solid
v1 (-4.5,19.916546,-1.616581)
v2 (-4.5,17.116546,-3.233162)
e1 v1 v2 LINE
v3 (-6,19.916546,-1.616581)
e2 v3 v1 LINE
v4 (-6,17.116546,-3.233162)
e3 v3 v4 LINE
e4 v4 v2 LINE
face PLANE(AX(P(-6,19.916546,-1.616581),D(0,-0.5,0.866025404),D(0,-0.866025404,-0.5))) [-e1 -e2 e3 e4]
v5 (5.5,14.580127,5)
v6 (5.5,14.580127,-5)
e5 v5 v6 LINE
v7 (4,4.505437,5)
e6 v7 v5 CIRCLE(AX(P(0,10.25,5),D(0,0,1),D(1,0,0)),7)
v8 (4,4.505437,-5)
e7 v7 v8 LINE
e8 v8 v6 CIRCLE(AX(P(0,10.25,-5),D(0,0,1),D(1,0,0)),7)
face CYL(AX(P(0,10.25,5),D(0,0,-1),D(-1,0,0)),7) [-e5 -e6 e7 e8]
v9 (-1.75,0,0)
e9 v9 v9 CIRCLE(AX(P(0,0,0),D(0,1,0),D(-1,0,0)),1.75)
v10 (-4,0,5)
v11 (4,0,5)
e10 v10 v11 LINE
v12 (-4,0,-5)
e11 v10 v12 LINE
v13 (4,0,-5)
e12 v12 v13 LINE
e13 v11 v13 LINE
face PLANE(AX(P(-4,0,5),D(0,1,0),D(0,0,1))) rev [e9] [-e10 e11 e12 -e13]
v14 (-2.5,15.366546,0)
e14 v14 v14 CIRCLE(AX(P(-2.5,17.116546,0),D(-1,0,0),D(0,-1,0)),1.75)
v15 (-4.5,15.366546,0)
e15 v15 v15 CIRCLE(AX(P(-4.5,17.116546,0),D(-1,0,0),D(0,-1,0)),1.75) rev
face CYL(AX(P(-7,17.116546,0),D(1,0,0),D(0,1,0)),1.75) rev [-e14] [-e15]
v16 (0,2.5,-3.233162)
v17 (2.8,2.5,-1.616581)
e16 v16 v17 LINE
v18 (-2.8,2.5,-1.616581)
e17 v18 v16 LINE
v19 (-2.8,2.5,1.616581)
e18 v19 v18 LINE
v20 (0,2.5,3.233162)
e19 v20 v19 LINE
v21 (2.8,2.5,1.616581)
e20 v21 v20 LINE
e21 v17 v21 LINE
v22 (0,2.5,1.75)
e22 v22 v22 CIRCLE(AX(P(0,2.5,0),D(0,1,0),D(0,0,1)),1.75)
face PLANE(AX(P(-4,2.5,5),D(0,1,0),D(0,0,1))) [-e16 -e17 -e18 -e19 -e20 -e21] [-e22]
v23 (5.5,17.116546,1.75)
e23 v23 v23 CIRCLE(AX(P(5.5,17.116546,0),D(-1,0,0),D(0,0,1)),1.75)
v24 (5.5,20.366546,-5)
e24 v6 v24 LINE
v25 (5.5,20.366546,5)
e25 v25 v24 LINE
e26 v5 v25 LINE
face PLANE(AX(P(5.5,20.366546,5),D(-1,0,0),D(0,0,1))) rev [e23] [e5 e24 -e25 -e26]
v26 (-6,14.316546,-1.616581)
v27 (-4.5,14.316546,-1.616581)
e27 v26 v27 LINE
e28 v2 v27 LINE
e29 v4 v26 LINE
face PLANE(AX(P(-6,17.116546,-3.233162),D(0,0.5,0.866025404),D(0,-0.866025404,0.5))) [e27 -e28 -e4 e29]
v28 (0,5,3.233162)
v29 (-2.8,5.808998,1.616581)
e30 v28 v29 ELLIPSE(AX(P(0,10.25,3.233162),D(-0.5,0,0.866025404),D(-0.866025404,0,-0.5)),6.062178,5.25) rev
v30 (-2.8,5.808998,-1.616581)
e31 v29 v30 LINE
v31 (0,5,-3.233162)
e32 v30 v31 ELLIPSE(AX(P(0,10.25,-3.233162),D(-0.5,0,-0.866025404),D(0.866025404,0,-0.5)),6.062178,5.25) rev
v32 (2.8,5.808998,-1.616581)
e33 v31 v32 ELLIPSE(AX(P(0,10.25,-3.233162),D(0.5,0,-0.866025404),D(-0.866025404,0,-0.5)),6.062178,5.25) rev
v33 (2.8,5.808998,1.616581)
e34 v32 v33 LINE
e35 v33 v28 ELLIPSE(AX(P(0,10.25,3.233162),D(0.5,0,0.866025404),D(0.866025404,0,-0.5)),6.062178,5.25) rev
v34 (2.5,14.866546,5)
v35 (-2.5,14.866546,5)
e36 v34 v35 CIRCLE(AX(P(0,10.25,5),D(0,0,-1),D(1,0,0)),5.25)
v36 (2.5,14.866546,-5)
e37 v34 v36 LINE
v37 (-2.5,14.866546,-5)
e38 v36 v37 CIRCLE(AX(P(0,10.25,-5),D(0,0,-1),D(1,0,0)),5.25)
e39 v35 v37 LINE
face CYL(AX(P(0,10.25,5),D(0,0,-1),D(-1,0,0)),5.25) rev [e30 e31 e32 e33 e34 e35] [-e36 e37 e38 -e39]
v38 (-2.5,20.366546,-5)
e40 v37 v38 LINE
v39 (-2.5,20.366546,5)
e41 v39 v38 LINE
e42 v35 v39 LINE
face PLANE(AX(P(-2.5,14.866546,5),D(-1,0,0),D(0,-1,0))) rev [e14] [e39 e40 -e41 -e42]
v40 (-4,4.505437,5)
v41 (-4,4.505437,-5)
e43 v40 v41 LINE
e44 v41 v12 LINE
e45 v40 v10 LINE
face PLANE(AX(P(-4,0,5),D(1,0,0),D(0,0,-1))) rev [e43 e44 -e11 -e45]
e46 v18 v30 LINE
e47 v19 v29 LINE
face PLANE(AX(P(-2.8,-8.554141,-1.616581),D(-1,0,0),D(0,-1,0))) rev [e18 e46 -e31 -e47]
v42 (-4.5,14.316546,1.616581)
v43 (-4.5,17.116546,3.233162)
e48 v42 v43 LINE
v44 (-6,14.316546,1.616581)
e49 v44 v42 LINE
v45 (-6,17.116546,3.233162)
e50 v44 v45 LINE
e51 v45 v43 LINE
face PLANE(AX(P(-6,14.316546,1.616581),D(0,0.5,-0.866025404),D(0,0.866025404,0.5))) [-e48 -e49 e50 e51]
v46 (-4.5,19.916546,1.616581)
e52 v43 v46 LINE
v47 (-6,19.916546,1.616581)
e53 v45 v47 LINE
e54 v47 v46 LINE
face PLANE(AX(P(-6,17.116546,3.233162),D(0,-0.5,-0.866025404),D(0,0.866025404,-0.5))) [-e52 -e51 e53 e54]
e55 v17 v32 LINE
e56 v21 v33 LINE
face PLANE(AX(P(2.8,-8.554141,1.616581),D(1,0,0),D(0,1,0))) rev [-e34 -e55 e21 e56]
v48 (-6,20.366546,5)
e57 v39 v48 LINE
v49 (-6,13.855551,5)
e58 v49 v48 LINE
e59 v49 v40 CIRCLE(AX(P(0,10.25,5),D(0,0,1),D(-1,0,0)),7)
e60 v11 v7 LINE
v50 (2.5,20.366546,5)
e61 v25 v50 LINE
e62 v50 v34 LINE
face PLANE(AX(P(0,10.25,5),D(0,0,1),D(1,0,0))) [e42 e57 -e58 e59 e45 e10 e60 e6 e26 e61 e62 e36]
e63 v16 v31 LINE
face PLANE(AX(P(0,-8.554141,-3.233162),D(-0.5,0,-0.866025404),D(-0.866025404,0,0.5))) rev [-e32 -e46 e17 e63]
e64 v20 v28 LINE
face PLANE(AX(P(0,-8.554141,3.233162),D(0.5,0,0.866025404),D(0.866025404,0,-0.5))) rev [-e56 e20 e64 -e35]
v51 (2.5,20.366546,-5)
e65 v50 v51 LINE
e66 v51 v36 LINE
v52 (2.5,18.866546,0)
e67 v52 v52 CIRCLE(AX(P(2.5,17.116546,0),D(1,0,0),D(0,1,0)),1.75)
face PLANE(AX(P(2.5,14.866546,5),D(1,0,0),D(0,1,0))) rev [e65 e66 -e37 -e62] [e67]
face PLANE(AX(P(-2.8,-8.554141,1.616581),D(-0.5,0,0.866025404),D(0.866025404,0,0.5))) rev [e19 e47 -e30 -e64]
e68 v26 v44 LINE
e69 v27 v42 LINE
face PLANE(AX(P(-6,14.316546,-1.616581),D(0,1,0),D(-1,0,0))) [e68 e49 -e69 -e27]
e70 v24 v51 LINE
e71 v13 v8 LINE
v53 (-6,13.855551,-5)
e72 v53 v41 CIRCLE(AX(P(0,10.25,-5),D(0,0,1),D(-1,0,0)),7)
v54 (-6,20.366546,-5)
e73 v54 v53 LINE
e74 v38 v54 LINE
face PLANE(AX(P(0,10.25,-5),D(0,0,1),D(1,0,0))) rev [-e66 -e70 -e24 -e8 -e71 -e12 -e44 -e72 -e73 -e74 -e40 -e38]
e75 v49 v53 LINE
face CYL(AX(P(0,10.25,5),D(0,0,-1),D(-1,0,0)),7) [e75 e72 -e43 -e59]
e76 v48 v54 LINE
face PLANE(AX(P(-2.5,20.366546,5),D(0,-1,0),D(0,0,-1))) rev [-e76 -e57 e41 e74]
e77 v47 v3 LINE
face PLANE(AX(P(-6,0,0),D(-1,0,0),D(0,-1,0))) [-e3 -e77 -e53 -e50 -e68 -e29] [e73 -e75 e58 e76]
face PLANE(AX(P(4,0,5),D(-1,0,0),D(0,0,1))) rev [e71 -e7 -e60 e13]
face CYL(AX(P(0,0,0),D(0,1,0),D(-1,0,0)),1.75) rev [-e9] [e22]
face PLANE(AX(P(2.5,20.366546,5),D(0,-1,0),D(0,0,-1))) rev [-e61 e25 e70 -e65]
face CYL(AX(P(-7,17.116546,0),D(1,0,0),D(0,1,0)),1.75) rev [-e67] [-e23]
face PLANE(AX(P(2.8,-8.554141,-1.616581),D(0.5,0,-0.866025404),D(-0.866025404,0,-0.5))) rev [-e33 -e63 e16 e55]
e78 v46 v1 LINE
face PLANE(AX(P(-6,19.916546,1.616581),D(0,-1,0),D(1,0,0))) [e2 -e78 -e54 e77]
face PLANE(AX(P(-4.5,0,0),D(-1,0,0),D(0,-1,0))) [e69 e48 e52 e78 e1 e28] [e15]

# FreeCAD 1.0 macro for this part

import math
import FreeCAD as App
import Part
import Sketcher
Q = App.Units.Quantity

doc = App.newDocument("Part")
body = doc.addObject("PartDesign::Body", "Body")

sketch1 = doc.addObject("Sketcher::SketchObject", "Sketch")
body.addObject(sketch1)
sketch1.AttachmentSupport = (doc.XY_Plane, [""])
sketch1.MapMode = "FlatFace"
sketch1.addGeometry([
    Part.LineSegment(App.Vector(-4, 0, 0), App.Vector(4, 0, 0)),
    Part.LineSegment(App.Vector(4, 0, 0), App.Vector(4, 4.505437, 0)),
    Part.ArcOfCircle(Part.Circle(App.Vector(0, 10.25, 0), App.Vector(0, 0, 1), 7), math.radians(-55.150095), math.radians(38.213211)),
    Part.LineSegment(App.Vector(5.5, 14.580127, 0), App.Vector(5.5, 20.366546, 0)),
    Part.LineSegment(App.Vector(5.5, 20.366546, 0), App.Vector(2.5, 20.366546, 0)),
    Part.LineSegment(App.Vector(2.5, 20.366546, 0), App.Vector(2.5, 14.866546, 0)),
    Part.ArcOfCircle(Part.Circle(App.Vector(0, 10.25, 0), App.Vector(0, 0, 1), 5.25), math.radians(118.43689), math.radians(421.56311)),
    Part.LineSegment(App.Vector(-2.5, 14.866546, 0), App.Vector(-2.5, 20.366546, 0)),
    Part.LineSegment(App.Vector(-2.5, 20.366546, 0), App.Vector(-5.5, 20.366546, 0)),
    Part.LineSegment(App.Vector(-5.5, 20.366546, 0), App.Vector(-5.5, 14.580127, 0)),
    Part.ArcOfCircle(Part.Circle(App.Vector(0, 10.25, 0), App.Vector(0, 0, 1), 7), math.radians(141.786789), math.radians(235.150095)),
    Part.LineSegment(App.Vector(-4, 4.505437, 0), App.Vector(-4, 0, 0)),
], False)
sketch1.addConstraint([
    Sketcher.Constraint("Coincident", 0, 2, 1, 1),
    Sketcher.Constraint("Coincident", 1, 2, 2, 1),
    Sketcher.Constraint("Coincident", 2, 2, 3, 1),
    Sketcher.Constraint("Coincident", 3, 2, 4, 1),
    Sketcher.Constraint("Coincident", 4, 2, 5, 1),
    Sketcher.Constraint("Coincident", 5, 2, 6, 2),
    Sketcher.Constraint("Coincident", 6, 1, 7, 1),
    Sketcher.Constraint("Coincident", 7, 2, 8, 1),
    Sketcher.Constraint("Coincident", 8, 2, 9, 1),
    Sketcher.Constraint("Coincident", 9, 2, 10, 1),
    Sketcher.Constraint("Coincident", 10, 2, 11, 1),
    Sketcher.Constraint("Coincident", 11, 2, 0, 1),
    Sketcher.Constraint("Horizontal", 0),
    Sketcher.Constraint("Vertical", 1),
    Sketcher.Constraint("Vertical", 3),
    Sketcher.Constraint("Horizontal", 4),
    Sketcher.Constraint("Vertical", 5),
    Sketcher.Constraint("Vertical", 7),
    Sketcher.Constraint("Horizontal", 8),
    Sketcher.Constraint("Vertical", 9),
    Sketcher.Constraint("Vertical", 11),
    Sketcher.Constraint("Coincident", 6, 3, 2, 3),
    Sketcher.Constraint("Coincident", 10, 3, 2, 3),
    Sketcher.Constraint("Equal", 2, 10),
    Sketcher.Constraint("Symmetric", 0, 2, 11, 2, -1, 1),
    Sketcher.Constraint("Symmetric", 5, 2, 6, 1, -2),
    Sketcher.Constraint("Symmetric", 3, 2, 8, 2, -2),
    Sketcher.Constraint("Radius", 2, 7.0),
    Sketcher.Constraint("DistanceX", 0, 1, 0, 2, 8.0),
    Sketcher.Constraint("DistanceX", 4, 2, 4, 1, 3.0),
    Sketcher.Constraint("Radius", 6, 5.25),
    Sketcher.Constraint("DistanceY", 5, 2, 5, 1, 5.5),
    Sketcher.Constraint("DistanceX", 6, 1, 5, 2, 5.0),
    Sketcher.Constraint("DistanceY", -1, 1, 2, 3, 10.25),
])
pad1 = doc.addObject("PartDesign::Pad", "Pad")
body.addObject(pad1)
pad1.Profile = sketch1
pad1.Length = 10
pad1.Midplane = True

sketch2 = doc.addObject("Sketcher::SketchObject", "Sketch001")
body.addObject(sketch2)
sketch2.AttachmentSupport = (doc.XZ_Plane, [""])
sketch2.MapMode = "FlatFace"
sketch2.AttachmentOffset = App.Placement(App.Vector(0, 0, -10.366546), App.Rotation())
sketch2.addGeometry([
    Part.LineSegment(App.Vector(0, -3.233162, 0), App.Vector(-2.8, -1.616581, 0)),
    Part.LineSegment(App.Vector(-2.8, -1.616581, 0), App.Vector(-2.8, 1.616581, 0)),
    Part.LineSegment(App.Vector(-2.8, 1.616581, 0), App.Vector(0, 3.233162, 0)),
    Part.LineSegment(App.Vector(0, 3.233162, 0), App.Vector(2.8, 1.616581, 0)),
    Part.LineSegment(App.Vector(2.8, 1.616581, 0), App.Vector(2.8, -1.616581, 0)),
    Part.LineSegment(App.Vector(2.8, -1.616581, 0), App.Vector(0, -3.233162, 0)),
], False)
sketch2.addConstraint([
    Sketcher.Constraint("Coincident", 0, 2, 1, 1),
    Sketcher.Constraint("Coincident", 1, 2, 2, 1),
    Sketcher.Constraint("Coincident", 2, 2, 3, 1),
    Sketcher.Constraint("Coincident", 3, 2, 4, 1),
    Sketcher.Constraint("Coincident", 4, 2, 5, 1),
    Sketcher.Constraint("Coincident", 5, 2, 0, 1),
    Sketcher.Constraint("Vertical", 1),
    Sketcher.Constraint("Vertical", 4),
    Sketcher.Constraint("Symmetric", 0, 2, 3, 2, -1, 1),
    Sketcher.Constraint("Symmetric", 2, 2, 5, 2, -1, 1),
    Sketcher.Constraint("PointOnObject", 2, 2, -2),
    Sketcher.Constraint("Parallel", 2, 5),
    Sketcher.Constraint("Horizontal", 1, 2, 3, 2),
    Sketcher.Constraint("Angle", 0, Q("150 deg")),
    Sketcher.Constraint("DistanceX", 0, 2, -1, 1, 2.8),
    Sketcher.Constraint("DistanceY", 1, 1, 1, 2, 3.233162),
])
pocket1 = doc.addObject("PartDesign::Pocket", "Pocket")
body.addObject(pocket1)
pocket1.Profile = sketch2
pocket1.Length = 7.866546
pocket1.Reversed = True

sketch3 = doc.addObject("Sketcher::SketchObject", "Sketch002")
body.addObject(sketch3)
sketch3.AttachmentSupport = (doc.XZ_Plane, [""])
sketch3.MapMode = "FlatFace"
sketch3.AttachmentOffset = App.Placement(App.Vector(0, 0, -20.366546), App.Rotation())
sketch3.addGeometry(Part.Circle(App.Vector(0, 0, 0), App.Vector(0, 0, 1), 1.75), False)
sketch3.addConstraint([
    Sketcher.Constraint("Coincident", 0, 3, -1, 1),
    Sketcher.Constraint("Diameter", 0, 3.5),
])
pocket2 = doc.addObject("PartDesign::Pocket", "Pocket001")
body.addObject(pocket2)
pocket2.Profile = sketch3
pocket2.Type = "ThroughAll"
pocket2.Reversed = True

sketch4 = doc.addObject("Sketcher::SketchObject", "Sketch003")
body.addObject(sketch4)
sketch4.AttachmentSupport = (doc.YZ_Plane, [""])
sketch4.MapMode = "FlatFace"
sketch4.AttachmentOffset = App.Placement(App.Vector(0, 0, 5.5), App.Rotation())
sketch4.addGeometry(Part.Circle(App.Vector(17.116546, 0, 0), App.Vector(0, 0, 1), 1.75), False)
sketch4.addConstraint([
    Sketcher.Constraint("PointOnObject", 0, 3, -1),
    Sketcher.Constraint("Diameter", 0, 3.5),
    Sketcher.Constraint("DistanceX", -1, 1, 0, 3, 17.116546),
])
pocket3 = doc.addObject("PartDesign::Pocket", "Pocket002")
body.addObject(pocket3)
pocket3.Profile = sketch4
pocket3.Type = "ThroughAll"
pocket3.Midplane = True

sketch5 = doc.addObject("Sketcher::SketchObject", "Sketch004")
body.addObject(sketch5)
sketch5.AttachmentSupport = (doc.YZ_Plane, [""])
sketch5.MapMode = "FlatFace"
sketch5.AttachmentOffset = App.Placement(App.Vector(0, 0, -5.5), App.Rotation())
sketch5.addGeometry([
    Part.LineSegment(App.Vector(20.366546, -5, 0), App.Vector(13.116546, -5, 0)),
    Part.LineSegment(App.Vector(13.116546, -5, 0), App.Vector(13.116546, 5, 0)),
    Part.LineSegment(App.Vector(13.116546, 5, 0), App.Vector(20.366546, 5, 0)),
    Part.LineSegment(App.Vector(20.366546, 5, 0), App.Vector(20.366546, -5, 0)),
    Part.LineSegment(App.Vector(19.916546, 1.616581, 0), App.Vector(17.116546, 3.233162, 0)),
    Part.LineSegment(App.Vector(17.116546, 3.233162, 0), App.Vector(14.316546, 1.616581, 0)),
    Part.LineSegment(App.Vector(14.316546, 1.616581, 0), App.Vector(14.316546, -1.616581, 0)),
    Part.LineSegment(App.Vector(14.316546, -1.616581, 0), App.Vector(17.116546, -3.233162, 0)),
    Part.LineSegment(App.Vector(17.116546, -3.233162, 0), App.Vector(19.916546, -1.616581, 0)),
    Part.LineSegment(App.Vector(19.916546, -1.616581, 0), App.Vector(19.916546, 1.616581, 0)),
], False)
sketch5.addConstraint([
    Sketcher.Constraint("Coincident", 0, 2, 1, 1),
    Sketcher.Constraint("Coincident", 1, 2, 2, 1),
    Sketcher.Constraint("Coincident", 2, 2, 3, 1),
    Sketcher.Constraint("Coincident", 3, 2, 0, 1),
    Sketcher.Constraint("Coincident", 4, 2, 5, 1),
    Sketcher.Constraint("Coincident", 5, 2, 6, 1),
    Sketcher.Constraint("Coincident", 6, 2, 7, 1),
    Sketcher.Constraint("Coincident", 7, 2, 8, 1),
    Sketcher.Constraint("Coincident", 8, 2, 9, 1),
    Sketcher.Constraint("Coincident", 9, 2, 4, 1),
    Sketcher.Constraint("Horizontal", 0),
    Sketcher.Constraint("Vertical", 1),
    Sketcher.Constraint("Horizontal", 2),
    Sketcher.Constraint("Vertical", 3),
    Sketcher.Constraint("Vertical", 6),
    Sketcher.Constraint("Vertical", 9),
    Sketcher.Constraint("Symmetric", 4, 2, 7, 2, -1),
    Sketcher.Constraint("Parallel", 4, 7),
    Sketcher.Constraint("Parallel", 5, 8),
    Sketcher.Constraint("Horizontal", 6, 2, 8, 2),
    Sketcher.Constraint("Horizontal", 5, 2, 9, 2),
    Sketcher.Constraint("DistanceY", 1, 1, 1, 2, 10.0),
    Sketcher.Constraint("Angle", 4, Q("150 deg")),
    Sketcher.Constraint("DistanceY", 0, 2, -1, 1, 5.0),
    Sketcher.Constraint("DistanceX", 1, 2, 4, 2, 4.0),
    Sketcher.Constraint("DistanceX", 0, 2, 0, 1, 7.25),
    Sketcher.Constraint("DistanceX", 5, 2, 4, 2, 2.8),
    Sketcher.Constraint("DistanceY", 6, 2, 6, 1, 3.233162),
    Sketcher.Constraint("DistanceX", -1, 1, 0, 2, 13.116546),
])
pad2 = doc.addObject("PartDesign::Pad", "Pad001")
body.addObject(pad2)
pad2.Profile = sketch5
pad2.Length = 0.5
pad2.Reversed = True

sketch6 = doc.addObject("Sketcher::SketchObject", "Sketch005")
body.addObject(sketch6)
sketch6.AttachmentSupport = (doc.YZ_Plane, [""])
sketch6.MapMode = "FlatFace"
sketch6.AttachmentOffset = App.Placement(App.Vector(0, 0, -5.5), App.Rotation())
sketch6.addGeometry([
    Part.LineSegment(App.Vector(17.116546, -3.233162, 0), App.Vector(14.580127, -1.768759, 0)),
    Part.LineSegment(App.Vector(14.580127, -1.768759, 0), App.Vector(14.316546, -1.616581, 0)),
    Part.LineSegment(App.Vector(14.316546, -1.616581, 0), App.Vector(14.316546, 1.616581, 0)),
    Part.LineSegment(App.Vector(14.316546, 1.616581, 0), App.Vector(14.580127, 1.768759, 0)),
    Part.LineSegment(App.Vector(14.580127, 1.768759, 0), App.Vector(17.116546, 3.233162, 0)),
    Part.LineSegment(App.Vector(17.116546, 3.233162, 0), App.Vector(19.916546, 1.616581, 0)),
    Part.LineSegment(App.Vector(19.916546, 1.616581, 0), App.Vector(19.916546, -1.616581, 0)),
    Part.LineSegment(App.Vector(19.916546, -1.616581, 0), App.Vector(17.116546, -3.233162, 0)),
    Part.Circle(App.Vector(17.116546, 0, 0), App.Vector(0, 0, 1), 1.75),
], False)
sketch6.addConstraint([
    Sketcher.Constraint("Coincident", 0, 2, 1, 1),
    Sketcher.Constraint("Coincident", 1, 2, 2, 1),
    Sketcher.Constraint("Coincident", 2, 2, 3, 1),
    Sketcher.Constraint("Coincident", 3, 2, 4, 1),
    Sketcher.Constraint("Coincident", 4, 2, 5, 1),
    Sketcher.Constraint("Coincident", 5, 2, 6, 1),
    Sketcher.Constraint("Coincident", 6, 2, 7, 1),
    Sketcher.Constraint("Coincident", 7, 2, 0, 1),
    Sketcher.Constraint("Vertical", 2),
    Sketcher.Constraint("Vertical", 6),
    Sketcher.Constraint("Symmetric", 0, 2, 3, 2, -1),
    Sketcher.Constraint("Symmetric", 4, 2, 7, 2, -1),
    Sketcher.Constraint("PointOnObject", 8, 3, -1),
    Sketcher.Constraint("Parallel", 0, 1),
    Sketcher.Constraint("Parallel", 3, 4),
    Sketcher.Constraint("Parallel", 1, 5),
    Sketcher.Constraint("Parallel", 4, 7),
    Sketcher.Constraint("Horizontal", 2, 2, 5, 2),
    Sketcher.Constraint("Vertical", 8, 3, 4, 2),
    Sketcher.Constraint("Diameter", 8, 3.5),
    Sketcher.Constraint("Angle", 0, Q("150 deg")),
    Sketcher.Constraint("DistanceX", 1, 2, 8, 3, 2.8),
    Sketcher.Constraint("DistanceY", 2, 1, 2, 2, 3.233162),
    Sketcher.Constraint("DistanceY", 0, 2, -1, 1, 1.768759),
    Sketcher.Constraint("DistanceX", -1, 1, 8, 3, 17.116546),
])
pocket4 = doc.addObject("PartDesign::Pocket", "Pocket003")
body.addObject(pocket4)
pocket4.Profile = sketch6
pocket4.Type = "TwoLengths"
pocket4.Length = 1.5
pocket4.Length2 = 1

doc.recompute()
